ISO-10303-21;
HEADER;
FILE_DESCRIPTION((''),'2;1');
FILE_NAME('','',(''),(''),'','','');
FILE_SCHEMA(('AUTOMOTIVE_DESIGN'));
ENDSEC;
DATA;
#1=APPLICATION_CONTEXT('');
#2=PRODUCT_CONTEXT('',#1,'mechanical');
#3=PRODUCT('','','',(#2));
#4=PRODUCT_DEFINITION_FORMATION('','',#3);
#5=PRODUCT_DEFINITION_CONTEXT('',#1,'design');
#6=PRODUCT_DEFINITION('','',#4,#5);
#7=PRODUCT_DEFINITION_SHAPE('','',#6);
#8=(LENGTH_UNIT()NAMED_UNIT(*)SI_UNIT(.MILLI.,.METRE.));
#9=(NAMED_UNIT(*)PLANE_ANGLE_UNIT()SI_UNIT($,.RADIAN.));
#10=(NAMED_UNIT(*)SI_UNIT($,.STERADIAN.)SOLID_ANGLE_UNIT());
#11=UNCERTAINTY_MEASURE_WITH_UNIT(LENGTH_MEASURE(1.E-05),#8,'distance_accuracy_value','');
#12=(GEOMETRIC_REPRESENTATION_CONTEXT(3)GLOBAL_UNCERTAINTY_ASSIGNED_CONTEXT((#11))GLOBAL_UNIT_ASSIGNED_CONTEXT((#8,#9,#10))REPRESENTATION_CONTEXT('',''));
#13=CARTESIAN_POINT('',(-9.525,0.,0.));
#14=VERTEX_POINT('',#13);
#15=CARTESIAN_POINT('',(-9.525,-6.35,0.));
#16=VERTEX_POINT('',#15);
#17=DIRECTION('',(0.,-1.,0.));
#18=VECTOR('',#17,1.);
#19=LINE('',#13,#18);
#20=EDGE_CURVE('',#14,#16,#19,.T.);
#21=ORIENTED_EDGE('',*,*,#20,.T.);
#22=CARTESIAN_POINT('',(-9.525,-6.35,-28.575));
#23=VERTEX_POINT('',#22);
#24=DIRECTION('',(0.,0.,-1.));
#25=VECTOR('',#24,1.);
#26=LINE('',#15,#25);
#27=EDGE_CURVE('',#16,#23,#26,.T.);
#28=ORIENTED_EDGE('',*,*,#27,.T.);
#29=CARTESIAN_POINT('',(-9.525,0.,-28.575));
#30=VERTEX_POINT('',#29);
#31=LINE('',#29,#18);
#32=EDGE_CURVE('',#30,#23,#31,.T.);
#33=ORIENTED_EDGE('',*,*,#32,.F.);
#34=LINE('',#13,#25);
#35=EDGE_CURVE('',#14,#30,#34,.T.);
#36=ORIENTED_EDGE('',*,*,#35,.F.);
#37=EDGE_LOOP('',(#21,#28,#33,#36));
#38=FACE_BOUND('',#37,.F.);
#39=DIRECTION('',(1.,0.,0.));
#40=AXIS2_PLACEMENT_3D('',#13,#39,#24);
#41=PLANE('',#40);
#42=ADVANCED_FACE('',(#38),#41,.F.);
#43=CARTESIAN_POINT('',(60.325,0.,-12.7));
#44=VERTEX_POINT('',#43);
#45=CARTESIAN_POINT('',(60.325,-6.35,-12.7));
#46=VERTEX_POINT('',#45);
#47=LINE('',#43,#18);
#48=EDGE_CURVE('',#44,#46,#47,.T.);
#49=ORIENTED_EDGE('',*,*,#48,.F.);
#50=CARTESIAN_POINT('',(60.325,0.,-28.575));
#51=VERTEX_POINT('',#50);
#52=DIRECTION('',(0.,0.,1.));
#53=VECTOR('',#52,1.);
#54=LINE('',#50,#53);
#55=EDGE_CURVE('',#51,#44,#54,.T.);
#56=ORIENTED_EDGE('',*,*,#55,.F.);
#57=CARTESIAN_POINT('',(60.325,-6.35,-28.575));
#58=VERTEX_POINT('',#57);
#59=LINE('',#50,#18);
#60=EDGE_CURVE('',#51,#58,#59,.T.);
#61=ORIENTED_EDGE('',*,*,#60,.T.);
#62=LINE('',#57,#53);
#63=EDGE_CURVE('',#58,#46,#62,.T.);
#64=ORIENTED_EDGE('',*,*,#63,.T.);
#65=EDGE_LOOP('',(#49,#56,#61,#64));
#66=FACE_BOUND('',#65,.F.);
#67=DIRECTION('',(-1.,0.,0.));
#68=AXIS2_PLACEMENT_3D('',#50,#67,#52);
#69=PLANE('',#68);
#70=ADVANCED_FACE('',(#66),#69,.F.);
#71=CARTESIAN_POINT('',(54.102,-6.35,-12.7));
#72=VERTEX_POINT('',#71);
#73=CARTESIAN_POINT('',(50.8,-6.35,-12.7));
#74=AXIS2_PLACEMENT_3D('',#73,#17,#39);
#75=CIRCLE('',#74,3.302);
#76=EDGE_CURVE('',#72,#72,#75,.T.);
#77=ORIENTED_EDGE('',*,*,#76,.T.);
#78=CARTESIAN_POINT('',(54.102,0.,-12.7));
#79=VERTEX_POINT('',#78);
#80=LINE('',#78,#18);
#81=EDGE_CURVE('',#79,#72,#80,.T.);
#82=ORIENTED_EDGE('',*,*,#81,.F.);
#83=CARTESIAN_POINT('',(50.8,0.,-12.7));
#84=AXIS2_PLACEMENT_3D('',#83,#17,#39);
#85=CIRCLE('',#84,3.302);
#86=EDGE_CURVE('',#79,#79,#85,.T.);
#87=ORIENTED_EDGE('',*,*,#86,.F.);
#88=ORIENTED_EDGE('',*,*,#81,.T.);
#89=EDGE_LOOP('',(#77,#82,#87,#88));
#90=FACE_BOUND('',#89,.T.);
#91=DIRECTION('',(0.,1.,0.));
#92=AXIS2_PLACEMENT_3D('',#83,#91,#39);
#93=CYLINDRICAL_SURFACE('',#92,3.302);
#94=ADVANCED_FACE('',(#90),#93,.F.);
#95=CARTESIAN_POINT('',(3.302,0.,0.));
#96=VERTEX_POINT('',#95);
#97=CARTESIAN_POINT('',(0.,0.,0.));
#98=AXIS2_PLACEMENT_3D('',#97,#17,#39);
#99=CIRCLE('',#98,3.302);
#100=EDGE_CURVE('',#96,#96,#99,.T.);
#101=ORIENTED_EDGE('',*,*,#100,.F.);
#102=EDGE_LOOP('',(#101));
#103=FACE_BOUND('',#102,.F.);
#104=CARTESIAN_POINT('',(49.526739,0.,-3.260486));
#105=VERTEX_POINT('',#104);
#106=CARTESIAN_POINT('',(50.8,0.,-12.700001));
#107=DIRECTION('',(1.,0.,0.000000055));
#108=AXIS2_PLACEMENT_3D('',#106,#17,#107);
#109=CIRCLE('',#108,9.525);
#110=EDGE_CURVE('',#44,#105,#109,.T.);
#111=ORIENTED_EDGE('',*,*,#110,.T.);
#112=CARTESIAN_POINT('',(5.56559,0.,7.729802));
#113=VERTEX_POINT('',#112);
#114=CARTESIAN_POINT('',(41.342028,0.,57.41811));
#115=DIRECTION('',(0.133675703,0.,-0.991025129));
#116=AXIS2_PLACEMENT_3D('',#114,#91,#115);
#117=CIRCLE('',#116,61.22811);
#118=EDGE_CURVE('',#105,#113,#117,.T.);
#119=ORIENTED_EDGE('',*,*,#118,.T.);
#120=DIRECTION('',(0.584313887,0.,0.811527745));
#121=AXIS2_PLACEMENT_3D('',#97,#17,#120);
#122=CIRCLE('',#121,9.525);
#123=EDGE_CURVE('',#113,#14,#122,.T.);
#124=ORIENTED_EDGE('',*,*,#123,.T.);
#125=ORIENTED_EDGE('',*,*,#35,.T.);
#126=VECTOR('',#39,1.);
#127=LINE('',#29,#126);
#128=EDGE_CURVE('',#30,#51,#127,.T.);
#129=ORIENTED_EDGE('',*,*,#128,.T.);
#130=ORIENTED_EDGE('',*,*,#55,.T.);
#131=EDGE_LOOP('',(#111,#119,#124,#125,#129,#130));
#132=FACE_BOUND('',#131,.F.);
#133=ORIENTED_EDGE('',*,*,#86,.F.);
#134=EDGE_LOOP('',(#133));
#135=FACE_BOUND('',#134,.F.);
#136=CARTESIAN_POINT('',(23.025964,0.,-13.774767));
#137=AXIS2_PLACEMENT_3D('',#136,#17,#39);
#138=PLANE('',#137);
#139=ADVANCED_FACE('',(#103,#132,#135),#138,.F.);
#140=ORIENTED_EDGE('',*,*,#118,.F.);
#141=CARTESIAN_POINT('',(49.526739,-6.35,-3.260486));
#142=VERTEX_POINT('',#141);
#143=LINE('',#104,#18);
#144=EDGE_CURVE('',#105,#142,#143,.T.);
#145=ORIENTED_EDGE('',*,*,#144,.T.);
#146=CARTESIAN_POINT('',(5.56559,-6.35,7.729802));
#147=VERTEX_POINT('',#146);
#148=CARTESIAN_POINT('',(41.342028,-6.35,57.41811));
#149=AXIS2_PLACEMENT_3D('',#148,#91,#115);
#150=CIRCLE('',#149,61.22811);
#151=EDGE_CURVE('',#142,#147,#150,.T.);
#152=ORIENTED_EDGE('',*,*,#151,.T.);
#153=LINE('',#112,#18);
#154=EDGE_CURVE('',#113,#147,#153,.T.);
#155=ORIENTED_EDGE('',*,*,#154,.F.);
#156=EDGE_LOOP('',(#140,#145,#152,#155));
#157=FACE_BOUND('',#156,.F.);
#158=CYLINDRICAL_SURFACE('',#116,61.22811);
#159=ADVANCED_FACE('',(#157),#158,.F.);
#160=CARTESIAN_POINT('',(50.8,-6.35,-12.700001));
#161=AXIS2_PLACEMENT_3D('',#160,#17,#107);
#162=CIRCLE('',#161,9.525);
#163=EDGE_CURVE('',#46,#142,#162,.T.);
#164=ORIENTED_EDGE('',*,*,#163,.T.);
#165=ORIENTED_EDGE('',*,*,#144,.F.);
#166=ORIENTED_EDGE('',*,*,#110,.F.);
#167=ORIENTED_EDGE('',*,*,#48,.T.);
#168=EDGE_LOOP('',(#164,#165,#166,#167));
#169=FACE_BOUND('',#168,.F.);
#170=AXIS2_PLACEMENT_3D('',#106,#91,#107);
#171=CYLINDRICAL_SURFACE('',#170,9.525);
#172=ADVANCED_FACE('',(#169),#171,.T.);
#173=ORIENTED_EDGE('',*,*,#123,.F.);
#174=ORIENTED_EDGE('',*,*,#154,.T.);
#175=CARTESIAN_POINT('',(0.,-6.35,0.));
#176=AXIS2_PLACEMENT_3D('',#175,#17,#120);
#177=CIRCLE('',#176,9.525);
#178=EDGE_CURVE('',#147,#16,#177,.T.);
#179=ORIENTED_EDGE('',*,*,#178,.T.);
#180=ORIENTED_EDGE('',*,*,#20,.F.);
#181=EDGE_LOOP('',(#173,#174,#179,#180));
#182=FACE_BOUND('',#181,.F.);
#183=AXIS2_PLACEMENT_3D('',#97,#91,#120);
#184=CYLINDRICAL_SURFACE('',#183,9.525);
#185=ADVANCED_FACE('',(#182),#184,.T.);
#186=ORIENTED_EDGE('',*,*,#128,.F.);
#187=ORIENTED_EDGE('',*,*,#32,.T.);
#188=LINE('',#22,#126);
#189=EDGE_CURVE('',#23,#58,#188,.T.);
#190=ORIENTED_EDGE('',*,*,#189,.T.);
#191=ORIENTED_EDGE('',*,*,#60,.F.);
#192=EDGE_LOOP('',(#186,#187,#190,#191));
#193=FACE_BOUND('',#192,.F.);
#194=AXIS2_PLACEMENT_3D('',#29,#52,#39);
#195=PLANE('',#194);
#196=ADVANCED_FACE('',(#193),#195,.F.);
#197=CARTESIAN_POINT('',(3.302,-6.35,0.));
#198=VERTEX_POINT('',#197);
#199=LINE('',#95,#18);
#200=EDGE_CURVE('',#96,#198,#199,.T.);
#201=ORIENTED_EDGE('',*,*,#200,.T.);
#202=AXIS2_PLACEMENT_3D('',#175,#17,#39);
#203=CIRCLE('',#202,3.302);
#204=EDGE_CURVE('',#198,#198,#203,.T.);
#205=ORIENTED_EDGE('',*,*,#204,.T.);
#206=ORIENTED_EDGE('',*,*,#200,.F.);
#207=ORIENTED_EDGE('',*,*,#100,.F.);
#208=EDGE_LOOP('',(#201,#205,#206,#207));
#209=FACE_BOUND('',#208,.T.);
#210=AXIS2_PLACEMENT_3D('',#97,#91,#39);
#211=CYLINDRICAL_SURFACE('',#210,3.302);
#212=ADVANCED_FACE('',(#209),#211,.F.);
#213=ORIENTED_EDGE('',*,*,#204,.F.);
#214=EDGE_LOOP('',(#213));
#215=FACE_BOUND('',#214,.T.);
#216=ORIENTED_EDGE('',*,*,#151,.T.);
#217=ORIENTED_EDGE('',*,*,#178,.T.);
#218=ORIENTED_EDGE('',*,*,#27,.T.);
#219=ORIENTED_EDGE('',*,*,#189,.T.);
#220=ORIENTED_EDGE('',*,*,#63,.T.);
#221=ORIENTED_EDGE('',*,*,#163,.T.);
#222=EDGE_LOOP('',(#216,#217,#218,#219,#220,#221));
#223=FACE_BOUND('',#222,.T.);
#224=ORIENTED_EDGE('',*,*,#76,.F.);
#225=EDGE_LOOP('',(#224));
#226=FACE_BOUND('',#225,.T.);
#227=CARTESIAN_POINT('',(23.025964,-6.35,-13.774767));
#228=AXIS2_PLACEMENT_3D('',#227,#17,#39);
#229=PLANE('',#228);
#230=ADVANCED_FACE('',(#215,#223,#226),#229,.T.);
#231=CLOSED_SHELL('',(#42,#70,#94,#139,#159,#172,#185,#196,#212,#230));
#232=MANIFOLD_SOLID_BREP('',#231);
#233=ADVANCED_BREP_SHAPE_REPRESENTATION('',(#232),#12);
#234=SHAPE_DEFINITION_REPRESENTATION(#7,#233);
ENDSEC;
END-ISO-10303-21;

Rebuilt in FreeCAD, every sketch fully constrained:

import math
import FreeCAD as App
import Part
import Sketcher

V = App.Vector
Q = App.Units.Quantity

doc = App.newDocument("Part")
body = doc.addObject("PartDesign::Body", "Body")

sketch1 = doc.addObject("Sketcher::SketchObject", "Sketch")
body.addObject(sketch1)
sketch1.AttachmentSupport = (doc.XZ_Plane, [""])
sketch1.MapMode = "FlatFace"
sketch1.addGeometry([
    Part.ArcOfCircle(Part.Circle(V(0, 0, 0), V(0, 0, 1), 9.5), math.radians(54), math.radians(180)),
    Part.LineSegment(V(-9.5, 0, 0), V(-9.5, -28.6, 0)),
    Part.LineSegment(V(-9.5, -28.6, 0), V(60.3, -28.6, 0)),
    Part.LineSegment(V(60.3, -28.6, 0), V(60.3, -12.7, 0)),
    Part.ArcOfCircle(Part.Circle(V(50.8, -12.7, 0), V(0, 0, 1), 9.5), math.radians(0), math.radians(98)),
    Part.ArcOfCircle(Part.Circle(V(41.3, 57.4, 0), V(0, 0, 1), 61.2), math.radians(-126), math.radians(-82)),
    Part.Circle(V(50.8, -12.7, 0), V(0, 0, 1), 3.3),
    Part.Circle(V(0, 0, 0), V(0, 0, 1), 3.3),
], False)
sketch1.addConstraint([
    Sketcher.Constraint("Tangent", 0, 2, 1, 1),
    Sketcher.Constraint("Coincident", 1, 2, 2, 1),
    Sketcher.Constraint("Coincident", 2, 2, 3, 1),
    Sketcher.Constraint("Tangent", 3, 2, 4, 1),
    Sketcher.Constraint("Tangent", 4, 2, 5, 2),
    Sketcher.Constraint("Tangent", 5, 1, 0, 1),
    Sketcher.Constraint("Vertical", 1),
    Sketcher.Constraint("Horizontal", 2),
    Sketcher.Constraint("Vertical", 3),
    Sketcher.Constraint("Coincident", 0, 3, -1, 1),
    Sketcher.Constraint("Coincident", 7, 3, -1, 1),
    Sketcher.Constraint("Coincident", 6, 3, 4, 3),
    Sketcher.Constraint("Equal", 0, 4),
    Sketcher.Constraint("Equal", 6, 7),
    Sketcher.Constraint("Diameter", 6, Q("0.26 in")),
    Sketcher.Constraint("DistanceX", -1, 1, 4, 3, Q("2 in")),
    Sketcher.Constraint("Radius", 0, Q("0.375 in")),
    Sketcher.Constraint("DistanceY", 4, 3, -1, 1, Q("0.5 in")),
    Sketcher.Constraint("DistanceY", 1, 2, 1, 1, Q("1.125 in")),
    Sketcher.Constraint("Radius", 5, 61.22811),
])
pad1 = doc.addObject("PartDesign::Pad", "Pad")
body.addObject(pad1)
pad1.Profile = sketch1
pad1.Length = Q("0.25 in")

doc.recompute()
